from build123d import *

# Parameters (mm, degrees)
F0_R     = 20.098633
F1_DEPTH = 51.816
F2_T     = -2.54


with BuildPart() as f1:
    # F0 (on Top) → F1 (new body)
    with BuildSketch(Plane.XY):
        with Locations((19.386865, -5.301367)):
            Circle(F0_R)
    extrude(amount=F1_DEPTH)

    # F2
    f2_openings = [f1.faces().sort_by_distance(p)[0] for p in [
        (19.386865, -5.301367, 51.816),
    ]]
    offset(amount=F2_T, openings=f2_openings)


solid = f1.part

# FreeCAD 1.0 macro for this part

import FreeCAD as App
import Part
import Sketcher
from FreeCAD import Vector
Q = App.Units.Quantity


def faces_at(feature, points):
    """Names of the faces that lie closest to the given points."""
    faces = feature.Shape.Faces
    near = lambda p: min(range(len(faces)), key=lambda i: faces[i].distToShape(Part.Vertex(*p))[0])
    return sorted({f"Face{near(p) + 1}" for p in points})

doc = App.newDocument("Part")
body = doc.addObject("PartDesign::Body", "Body")

# Sketch on XY plane
sketch1 = doc.addObject("Sketcher::SketchObject", "Sketch")
body.addObject(sketch1)
sketch1.AttachmentSupport = (doc.XY_Plane, [""])
sketch1.MapMode = "FlatFace"
sketch1.addGeometry(Part.Circle(Vector(19, -5, 0), Vector(0, 0, 1), 20), False)
sketch1.addConstraint([
    Sketcher.Constraint("Diameter", 0, 40.197266),
    Sketcher.Constraint("DistanceX", -1, 1, 0, 3, 19.386865),
    Sketcher.Constraint("DistanceY", 0, 3, -1, 1, 5.301367),
])
pad1 = doc.addObject("PartDesign::Pad", "Pad")
body.addObject(pad1)
pad1.Profile = sketch1
pad1.Length = Q("2.04 in")
doc.recompute()

thickness = doc.addObject("PartDesign::Thickness", "Thickness")
body.addObject(thickness)
thickness.Base = (pad1, faces_at(pad1, [(19.387, -5.301, 51.816)]))
thickness.Value = Q("0.1 in")
thickness.Reversed = True
thickness.Join = "Arc"

doc.recompute()
